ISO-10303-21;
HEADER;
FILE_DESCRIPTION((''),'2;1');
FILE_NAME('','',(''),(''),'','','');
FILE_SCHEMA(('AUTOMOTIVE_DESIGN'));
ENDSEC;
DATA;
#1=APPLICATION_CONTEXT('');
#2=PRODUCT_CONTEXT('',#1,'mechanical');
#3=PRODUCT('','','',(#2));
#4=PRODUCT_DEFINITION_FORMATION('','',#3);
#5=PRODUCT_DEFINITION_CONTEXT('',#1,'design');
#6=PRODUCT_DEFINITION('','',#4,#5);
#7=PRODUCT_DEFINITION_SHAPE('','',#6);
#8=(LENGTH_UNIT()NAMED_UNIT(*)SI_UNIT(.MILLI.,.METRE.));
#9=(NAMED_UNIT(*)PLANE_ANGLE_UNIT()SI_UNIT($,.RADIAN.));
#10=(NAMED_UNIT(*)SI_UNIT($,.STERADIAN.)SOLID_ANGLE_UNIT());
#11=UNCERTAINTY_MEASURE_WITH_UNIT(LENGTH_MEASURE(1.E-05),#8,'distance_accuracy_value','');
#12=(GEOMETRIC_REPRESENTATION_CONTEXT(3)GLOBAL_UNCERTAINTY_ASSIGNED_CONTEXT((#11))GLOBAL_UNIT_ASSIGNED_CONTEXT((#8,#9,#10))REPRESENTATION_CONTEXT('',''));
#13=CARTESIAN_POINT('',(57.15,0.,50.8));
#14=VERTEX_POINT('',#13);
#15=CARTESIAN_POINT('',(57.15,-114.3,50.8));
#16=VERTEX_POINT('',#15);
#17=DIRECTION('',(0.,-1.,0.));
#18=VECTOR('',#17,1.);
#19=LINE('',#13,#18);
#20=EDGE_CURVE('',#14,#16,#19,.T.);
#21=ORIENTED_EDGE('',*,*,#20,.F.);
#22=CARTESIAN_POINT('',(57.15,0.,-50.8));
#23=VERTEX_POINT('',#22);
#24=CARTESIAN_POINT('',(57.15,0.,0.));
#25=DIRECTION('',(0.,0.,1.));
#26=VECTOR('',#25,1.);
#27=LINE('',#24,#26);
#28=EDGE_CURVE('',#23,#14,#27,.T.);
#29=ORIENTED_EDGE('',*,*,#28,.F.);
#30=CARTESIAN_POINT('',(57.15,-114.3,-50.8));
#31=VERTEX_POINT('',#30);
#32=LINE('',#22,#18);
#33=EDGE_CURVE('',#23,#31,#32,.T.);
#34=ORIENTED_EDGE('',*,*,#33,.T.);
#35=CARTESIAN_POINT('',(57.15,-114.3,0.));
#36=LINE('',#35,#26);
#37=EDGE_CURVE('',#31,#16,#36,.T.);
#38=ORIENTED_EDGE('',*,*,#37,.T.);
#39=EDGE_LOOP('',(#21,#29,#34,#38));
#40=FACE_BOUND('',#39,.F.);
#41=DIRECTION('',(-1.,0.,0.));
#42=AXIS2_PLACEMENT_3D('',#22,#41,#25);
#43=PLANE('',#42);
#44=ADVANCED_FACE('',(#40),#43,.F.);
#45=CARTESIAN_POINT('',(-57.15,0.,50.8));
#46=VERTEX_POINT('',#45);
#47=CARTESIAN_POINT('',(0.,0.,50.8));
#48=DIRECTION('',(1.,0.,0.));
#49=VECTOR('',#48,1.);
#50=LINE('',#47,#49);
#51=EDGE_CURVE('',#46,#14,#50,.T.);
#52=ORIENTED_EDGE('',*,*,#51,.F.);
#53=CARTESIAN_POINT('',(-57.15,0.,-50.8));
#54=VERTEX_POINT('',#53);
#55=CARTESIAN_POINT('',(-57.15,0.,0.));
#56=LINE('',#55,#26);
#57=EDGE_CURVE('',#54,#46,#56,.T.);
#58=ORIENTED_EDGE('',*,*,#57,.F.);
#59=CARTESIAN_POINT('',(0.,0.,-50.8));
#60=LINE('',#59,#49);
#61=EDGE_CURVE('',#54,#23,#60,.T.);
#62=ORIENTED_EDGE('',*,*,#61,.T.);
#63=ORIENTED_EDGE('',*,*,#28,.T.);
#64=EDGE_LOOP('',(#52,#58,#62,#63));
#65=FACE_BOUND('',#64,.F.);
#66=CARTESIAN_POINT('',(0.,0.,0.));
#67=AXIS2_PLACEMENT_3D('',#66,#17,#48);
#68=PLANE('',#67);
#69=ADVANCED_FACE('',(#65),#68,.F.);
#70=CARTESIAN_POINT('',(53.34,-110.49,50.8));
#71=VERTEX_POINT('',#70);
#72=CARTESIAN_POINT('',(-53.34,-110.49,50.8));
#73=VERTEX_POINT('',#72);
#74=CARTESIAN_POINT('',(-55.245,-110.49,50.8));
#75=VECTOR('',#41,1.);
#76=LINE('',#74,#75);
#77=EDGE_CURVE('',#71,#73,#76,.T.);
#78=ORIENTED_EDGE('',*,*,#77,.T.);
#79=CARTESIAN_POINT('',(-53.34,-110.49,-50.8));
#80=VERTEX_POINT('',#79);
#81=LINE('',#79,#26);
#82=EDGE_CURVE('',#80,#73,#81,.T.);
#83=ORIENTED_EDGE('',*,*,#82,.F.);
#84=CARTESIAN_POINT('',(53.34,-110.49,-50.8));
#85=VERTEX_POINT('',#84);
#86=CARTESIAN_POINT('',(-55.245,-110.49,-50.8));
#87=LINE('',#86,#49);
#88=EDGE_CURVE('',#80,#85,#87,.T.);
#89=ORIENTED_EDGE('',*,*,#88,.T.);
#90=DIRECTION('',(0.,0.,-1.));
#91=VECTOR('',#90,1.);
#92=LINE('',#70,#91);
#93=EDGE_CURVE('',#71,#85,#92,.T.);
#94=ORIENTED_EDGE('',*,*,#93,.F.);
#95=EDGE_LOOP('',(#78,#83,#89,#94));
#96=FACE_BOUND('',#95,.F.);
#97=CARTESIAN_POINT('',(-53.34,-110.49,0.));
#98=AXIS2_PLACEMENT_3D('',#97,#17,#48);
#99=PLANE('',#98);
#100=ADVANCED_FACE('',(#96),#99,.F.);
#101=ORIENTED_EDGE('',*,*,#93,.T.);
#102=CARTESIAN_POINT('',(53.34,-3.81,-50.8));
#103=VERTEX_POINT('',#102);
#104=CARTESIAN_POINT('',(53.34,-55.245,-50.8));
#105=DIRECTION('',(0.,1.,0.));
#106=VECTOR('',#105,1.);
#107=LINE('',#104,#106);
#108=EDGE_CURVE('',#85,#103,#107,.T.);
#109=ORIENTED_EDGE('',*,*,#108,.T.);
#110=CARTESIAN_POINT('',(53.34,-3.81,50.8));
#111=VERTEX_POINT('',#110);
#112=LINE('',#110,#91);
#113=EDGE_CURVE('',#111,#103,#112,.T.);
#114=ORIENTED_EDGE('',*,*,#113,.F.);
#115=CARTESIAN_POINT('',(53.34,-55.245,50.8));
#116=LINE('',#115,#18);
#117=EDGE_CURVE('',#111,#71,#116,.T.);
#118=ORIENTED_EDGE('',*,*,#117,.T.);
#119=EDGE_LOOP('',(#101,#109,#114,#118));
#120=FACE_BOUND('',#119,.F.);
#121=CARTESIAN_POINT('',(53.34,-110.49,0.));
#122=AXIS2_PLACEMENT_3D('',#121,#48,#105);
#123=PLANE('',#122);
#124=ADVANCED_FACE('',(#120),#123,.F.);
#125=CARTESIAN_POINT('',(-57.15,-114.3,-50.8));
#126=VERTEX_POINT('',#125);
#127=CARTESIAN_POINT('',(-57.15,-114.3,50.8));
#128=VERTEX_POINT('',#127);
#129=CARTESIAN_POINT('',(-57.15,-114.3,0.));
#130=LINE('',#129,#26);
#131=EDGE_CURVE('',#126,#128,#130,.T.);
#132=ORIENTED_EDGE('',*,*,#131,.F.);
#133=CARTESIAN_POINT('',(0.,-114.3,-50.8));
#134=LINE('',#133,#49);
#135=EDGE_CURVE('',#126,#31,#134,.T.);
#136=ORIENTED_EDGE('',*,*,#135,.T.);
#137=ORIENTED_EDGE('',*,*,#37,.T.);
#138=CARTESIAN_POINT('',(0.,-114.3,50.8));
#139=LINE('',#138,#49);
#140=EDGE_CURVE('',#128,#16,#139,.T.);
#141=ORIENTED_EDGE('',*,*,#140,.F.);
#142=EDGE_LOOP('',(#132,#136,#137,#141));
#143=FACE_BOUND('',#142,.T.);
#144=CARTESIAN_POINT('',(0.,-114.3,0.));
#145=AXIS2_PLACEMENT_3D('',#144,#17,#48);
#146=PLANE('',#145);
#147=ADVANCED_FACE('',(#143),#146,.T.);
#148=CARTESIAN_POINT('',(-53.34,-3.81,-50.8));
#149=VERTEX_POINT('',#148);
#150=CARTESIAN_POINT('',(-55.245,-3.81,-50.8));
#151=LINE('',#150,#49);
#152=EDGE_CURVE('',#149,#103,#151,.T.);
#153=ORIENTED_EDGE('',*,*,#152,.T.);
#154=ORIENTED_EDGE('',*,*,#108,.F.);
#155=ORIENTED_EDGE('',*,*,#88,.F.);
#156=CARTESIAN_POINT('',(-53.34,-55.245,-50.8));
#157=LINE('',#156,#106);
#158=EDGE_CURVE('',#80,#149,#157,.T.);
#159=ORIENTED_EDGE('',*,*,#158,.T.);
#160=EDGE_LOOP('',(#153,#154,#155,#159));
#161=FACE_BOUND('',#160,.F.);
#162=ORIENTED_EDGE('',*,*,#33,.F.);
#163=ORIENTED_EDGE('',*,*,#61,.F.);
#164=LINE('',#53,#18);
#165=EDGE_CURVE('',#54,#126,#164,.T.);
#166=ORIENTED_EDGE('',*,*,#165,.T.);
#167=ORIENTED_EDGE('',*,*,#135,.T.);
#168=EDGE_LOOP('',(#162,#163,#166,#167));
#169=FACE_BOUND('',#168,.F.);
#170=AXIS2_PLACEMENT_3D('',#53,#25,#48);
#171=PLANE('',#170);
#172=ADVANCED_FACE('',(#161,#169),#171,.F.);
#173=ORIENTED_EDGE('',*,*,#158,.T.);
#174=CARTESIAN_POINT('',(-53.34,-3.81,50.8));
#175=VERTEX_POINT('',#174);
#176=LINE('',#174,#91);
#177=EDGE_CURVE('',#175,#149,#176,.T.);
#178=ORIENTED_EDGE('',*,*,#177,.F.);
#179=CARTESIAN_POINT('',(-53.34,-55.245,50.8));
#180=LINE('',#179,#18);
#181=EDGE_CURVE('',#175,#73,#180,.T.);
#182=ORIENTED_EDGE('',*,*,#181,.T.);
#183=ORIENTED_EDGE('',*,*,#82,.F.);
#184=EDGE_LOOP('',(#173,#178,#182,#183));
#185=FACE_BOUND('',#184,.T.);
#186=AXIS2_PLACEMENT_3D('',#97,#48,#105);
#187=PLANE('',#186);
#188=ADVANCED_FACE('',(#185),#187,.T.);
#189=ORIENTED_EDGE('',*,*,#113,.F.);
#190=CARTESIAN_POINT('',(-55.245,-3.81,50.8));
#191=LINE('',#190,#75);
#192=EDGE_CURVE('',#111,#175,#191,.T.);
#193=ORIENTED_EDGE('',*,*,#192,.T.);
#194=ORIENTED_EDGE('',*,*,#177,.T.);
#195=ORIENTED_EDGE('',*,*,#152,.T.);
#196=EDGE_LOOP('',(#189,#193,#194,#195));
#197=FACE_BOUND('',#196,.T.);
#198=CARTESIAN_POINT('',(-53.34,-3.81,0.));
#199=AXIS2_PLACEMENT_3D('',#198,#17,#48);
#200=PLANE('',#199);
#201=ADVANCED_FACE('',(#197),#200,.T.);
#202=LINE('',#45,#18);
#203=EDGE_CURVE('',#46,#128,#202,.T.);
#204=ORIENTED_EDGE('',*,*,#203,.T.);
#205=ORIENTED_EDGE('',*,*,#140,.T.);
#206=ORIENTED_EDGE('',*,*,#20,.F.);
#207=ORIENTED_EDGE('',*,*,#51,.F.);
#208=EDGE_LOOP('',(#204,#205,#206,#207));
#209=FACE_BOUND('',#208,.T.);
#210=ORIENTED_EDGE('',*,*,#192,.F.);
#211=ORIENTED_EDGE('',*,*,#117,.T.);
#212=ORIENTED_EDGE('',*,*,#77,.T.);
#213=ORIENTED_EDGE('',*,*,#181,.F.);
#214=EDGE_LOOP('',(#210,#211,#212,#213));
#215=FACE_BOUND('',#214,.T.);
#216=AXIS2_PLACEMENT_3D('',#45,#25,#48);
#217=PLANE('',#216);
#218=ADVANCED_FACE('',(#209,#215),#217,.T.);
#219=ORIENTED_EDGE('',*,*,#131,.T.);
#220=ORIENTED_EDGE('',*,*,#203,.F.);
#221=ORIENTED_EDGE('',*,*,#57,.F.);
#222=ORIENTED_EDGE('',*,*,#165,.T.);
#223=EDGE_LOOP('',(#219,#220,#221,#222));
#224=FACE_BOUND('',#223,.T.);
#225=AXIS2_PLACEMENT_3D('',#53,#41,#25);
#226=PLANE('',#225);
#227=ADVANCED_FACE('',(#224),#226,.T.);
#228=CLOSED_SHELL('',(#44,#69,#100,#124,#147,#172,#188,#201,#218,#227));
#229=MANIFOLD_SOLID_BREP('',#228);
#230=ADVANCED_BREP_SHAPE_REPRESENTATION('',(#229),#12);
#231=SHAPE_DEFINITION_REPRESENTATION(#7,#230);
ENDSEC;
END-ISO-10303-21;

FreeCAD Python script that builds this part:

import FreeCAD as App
import Part
import Sketcher

V = App.Vector
Q = App.Units.Quantity


def add_polygon(sketch, points):
    """Adds a closed chain of lines whose ends are joined by coincident constraints."""
    first, n = sketch.GeometryCount, len(points)
    for a, b in zip(points, points[1:] + points[:1]):
        sketch.addGeometry(Part.LineSegment(App.Vector(*a, 0), App.Vector(*b, 0)), False)
    for i in range(n):
        sketch.addConstraint(Sketcher.Constraint("Coincident", first + i, 2, first + (i + 1) % n, 1))

doc = App.newDocument("Part")
body = doc.addObject("PartDesign::Body", "Body")

# Sketch on XZ plane
sketch1 = body.newObject("Sketcher::SketchObject", "Sketch")
sketch1.AttachmentSupport = (doc.getObject("XZ_Plane"), [""])
sketch1.MapMode = "FlatFace"
add_polygon(sketch1, [(-57, 51), (-57, -51), (57, -51), (57, 51)])  # lines 0-3
sketch1.addConstraint([
    Sketcher.Constraint("Vertical", 0),
    Sketcher.Constraint("Horizontal", 1),
    Sketcher.Constraint("Vertical", 2),
    Sketcher.Constraint("Horizontal", 3),
    Sketcher.Constraint("Symmetric", 0, 2, 2, 2, -1, 1),
    Sketcher.Constraint("DistanceY", 0, 2, 0, 1, Q("4 in")),
    Sketcher.Constraint("DistanceX", 1, 1, 1, 2, Q("4.5 in")),
])
pad1 = body.newObject("PartDesign::Pad", "Pad")
pad1.Profile = sketch1
pad1.Length = Q("4.5 in")

# Sketch on XY plane
sketch2 = body.newObject("Sketcher::SketchObject", "Sketch001")
sketch2.AttachmentSupport = (doc.getObject("XY_Plane"), [""])
sketch2.MapMode = "FlatFace"
add_polygon(sketch2, [(-53, -4), (-53, -110), (53, -110), (53, -4)])  # lines 0-3
sketch2.addConstraint([
    Sketcher.Constraint("Vertical", 0),
    Sketcher.Constraint("Horizontal", 1),
    Sketcher.Constraint("Vertical", 2),
    Sketcher.Constraint("Horizontal", 3),
    Sketcher.Constraint("Equal", 3, 0),
    Sketcher.Constraint("DistanceX", 1, 1, 1, 2, Q("4.2 in")),
    Sketcher.Constraint("DistanceX", 0, 2, -1, 1, Q("2.1 in")),
    Sketcher.Constraint("DistanceY", 0, 2, -1, 1, Q("4.35 in")),
])
pocket1 = body.newObject("PartDesign::Pocket", "Pocket")
pocket1.Profile = sketch2
pocket1.Type = "ThroughAll"
pocket1.Reversed = True

# Sketch on XY plane
sketch3 = body.newObject("Sketcher::SketchObject", "Sketch002")
sketch3.AttachmentSupport = (doc.getObject("XY_Plane"), [""])
sketch3.MapMode = "FlatFace"
add_polygon(sketch3, [(-53, -4), (-53, -110), (53, -110), (53, -4)])  # lines 0-3
sketch3.addConstraint([
    Sketcher.Constraint("Vertical", 0),
    Sketcher.Constraint("Horizontal", 1),
    Sketcher.Constraint("Vertical", 2),
    Sketcher.Constraint("Horizontal", 3),
    Sketcher.Constraint("Equal", 3, 0),
    Sketcher.Constraint("DistanceX", 1, 1, 1, 2, Q("4.2 in")),
    Sketcher.Constraint("DistanceX", 0, 2, -1, 1, Q("2.1 in")),
    Sketcher.Constraint("DistanceY", 0, 2, -1, 1, Q("4.35 in")),
])
pocket2 = body.newObject("PartDesign::Pocket", "Pocket001")
pocket2.Profile = sketch3
pocket2.Type = "ThroughAll"

doc.recompute()
